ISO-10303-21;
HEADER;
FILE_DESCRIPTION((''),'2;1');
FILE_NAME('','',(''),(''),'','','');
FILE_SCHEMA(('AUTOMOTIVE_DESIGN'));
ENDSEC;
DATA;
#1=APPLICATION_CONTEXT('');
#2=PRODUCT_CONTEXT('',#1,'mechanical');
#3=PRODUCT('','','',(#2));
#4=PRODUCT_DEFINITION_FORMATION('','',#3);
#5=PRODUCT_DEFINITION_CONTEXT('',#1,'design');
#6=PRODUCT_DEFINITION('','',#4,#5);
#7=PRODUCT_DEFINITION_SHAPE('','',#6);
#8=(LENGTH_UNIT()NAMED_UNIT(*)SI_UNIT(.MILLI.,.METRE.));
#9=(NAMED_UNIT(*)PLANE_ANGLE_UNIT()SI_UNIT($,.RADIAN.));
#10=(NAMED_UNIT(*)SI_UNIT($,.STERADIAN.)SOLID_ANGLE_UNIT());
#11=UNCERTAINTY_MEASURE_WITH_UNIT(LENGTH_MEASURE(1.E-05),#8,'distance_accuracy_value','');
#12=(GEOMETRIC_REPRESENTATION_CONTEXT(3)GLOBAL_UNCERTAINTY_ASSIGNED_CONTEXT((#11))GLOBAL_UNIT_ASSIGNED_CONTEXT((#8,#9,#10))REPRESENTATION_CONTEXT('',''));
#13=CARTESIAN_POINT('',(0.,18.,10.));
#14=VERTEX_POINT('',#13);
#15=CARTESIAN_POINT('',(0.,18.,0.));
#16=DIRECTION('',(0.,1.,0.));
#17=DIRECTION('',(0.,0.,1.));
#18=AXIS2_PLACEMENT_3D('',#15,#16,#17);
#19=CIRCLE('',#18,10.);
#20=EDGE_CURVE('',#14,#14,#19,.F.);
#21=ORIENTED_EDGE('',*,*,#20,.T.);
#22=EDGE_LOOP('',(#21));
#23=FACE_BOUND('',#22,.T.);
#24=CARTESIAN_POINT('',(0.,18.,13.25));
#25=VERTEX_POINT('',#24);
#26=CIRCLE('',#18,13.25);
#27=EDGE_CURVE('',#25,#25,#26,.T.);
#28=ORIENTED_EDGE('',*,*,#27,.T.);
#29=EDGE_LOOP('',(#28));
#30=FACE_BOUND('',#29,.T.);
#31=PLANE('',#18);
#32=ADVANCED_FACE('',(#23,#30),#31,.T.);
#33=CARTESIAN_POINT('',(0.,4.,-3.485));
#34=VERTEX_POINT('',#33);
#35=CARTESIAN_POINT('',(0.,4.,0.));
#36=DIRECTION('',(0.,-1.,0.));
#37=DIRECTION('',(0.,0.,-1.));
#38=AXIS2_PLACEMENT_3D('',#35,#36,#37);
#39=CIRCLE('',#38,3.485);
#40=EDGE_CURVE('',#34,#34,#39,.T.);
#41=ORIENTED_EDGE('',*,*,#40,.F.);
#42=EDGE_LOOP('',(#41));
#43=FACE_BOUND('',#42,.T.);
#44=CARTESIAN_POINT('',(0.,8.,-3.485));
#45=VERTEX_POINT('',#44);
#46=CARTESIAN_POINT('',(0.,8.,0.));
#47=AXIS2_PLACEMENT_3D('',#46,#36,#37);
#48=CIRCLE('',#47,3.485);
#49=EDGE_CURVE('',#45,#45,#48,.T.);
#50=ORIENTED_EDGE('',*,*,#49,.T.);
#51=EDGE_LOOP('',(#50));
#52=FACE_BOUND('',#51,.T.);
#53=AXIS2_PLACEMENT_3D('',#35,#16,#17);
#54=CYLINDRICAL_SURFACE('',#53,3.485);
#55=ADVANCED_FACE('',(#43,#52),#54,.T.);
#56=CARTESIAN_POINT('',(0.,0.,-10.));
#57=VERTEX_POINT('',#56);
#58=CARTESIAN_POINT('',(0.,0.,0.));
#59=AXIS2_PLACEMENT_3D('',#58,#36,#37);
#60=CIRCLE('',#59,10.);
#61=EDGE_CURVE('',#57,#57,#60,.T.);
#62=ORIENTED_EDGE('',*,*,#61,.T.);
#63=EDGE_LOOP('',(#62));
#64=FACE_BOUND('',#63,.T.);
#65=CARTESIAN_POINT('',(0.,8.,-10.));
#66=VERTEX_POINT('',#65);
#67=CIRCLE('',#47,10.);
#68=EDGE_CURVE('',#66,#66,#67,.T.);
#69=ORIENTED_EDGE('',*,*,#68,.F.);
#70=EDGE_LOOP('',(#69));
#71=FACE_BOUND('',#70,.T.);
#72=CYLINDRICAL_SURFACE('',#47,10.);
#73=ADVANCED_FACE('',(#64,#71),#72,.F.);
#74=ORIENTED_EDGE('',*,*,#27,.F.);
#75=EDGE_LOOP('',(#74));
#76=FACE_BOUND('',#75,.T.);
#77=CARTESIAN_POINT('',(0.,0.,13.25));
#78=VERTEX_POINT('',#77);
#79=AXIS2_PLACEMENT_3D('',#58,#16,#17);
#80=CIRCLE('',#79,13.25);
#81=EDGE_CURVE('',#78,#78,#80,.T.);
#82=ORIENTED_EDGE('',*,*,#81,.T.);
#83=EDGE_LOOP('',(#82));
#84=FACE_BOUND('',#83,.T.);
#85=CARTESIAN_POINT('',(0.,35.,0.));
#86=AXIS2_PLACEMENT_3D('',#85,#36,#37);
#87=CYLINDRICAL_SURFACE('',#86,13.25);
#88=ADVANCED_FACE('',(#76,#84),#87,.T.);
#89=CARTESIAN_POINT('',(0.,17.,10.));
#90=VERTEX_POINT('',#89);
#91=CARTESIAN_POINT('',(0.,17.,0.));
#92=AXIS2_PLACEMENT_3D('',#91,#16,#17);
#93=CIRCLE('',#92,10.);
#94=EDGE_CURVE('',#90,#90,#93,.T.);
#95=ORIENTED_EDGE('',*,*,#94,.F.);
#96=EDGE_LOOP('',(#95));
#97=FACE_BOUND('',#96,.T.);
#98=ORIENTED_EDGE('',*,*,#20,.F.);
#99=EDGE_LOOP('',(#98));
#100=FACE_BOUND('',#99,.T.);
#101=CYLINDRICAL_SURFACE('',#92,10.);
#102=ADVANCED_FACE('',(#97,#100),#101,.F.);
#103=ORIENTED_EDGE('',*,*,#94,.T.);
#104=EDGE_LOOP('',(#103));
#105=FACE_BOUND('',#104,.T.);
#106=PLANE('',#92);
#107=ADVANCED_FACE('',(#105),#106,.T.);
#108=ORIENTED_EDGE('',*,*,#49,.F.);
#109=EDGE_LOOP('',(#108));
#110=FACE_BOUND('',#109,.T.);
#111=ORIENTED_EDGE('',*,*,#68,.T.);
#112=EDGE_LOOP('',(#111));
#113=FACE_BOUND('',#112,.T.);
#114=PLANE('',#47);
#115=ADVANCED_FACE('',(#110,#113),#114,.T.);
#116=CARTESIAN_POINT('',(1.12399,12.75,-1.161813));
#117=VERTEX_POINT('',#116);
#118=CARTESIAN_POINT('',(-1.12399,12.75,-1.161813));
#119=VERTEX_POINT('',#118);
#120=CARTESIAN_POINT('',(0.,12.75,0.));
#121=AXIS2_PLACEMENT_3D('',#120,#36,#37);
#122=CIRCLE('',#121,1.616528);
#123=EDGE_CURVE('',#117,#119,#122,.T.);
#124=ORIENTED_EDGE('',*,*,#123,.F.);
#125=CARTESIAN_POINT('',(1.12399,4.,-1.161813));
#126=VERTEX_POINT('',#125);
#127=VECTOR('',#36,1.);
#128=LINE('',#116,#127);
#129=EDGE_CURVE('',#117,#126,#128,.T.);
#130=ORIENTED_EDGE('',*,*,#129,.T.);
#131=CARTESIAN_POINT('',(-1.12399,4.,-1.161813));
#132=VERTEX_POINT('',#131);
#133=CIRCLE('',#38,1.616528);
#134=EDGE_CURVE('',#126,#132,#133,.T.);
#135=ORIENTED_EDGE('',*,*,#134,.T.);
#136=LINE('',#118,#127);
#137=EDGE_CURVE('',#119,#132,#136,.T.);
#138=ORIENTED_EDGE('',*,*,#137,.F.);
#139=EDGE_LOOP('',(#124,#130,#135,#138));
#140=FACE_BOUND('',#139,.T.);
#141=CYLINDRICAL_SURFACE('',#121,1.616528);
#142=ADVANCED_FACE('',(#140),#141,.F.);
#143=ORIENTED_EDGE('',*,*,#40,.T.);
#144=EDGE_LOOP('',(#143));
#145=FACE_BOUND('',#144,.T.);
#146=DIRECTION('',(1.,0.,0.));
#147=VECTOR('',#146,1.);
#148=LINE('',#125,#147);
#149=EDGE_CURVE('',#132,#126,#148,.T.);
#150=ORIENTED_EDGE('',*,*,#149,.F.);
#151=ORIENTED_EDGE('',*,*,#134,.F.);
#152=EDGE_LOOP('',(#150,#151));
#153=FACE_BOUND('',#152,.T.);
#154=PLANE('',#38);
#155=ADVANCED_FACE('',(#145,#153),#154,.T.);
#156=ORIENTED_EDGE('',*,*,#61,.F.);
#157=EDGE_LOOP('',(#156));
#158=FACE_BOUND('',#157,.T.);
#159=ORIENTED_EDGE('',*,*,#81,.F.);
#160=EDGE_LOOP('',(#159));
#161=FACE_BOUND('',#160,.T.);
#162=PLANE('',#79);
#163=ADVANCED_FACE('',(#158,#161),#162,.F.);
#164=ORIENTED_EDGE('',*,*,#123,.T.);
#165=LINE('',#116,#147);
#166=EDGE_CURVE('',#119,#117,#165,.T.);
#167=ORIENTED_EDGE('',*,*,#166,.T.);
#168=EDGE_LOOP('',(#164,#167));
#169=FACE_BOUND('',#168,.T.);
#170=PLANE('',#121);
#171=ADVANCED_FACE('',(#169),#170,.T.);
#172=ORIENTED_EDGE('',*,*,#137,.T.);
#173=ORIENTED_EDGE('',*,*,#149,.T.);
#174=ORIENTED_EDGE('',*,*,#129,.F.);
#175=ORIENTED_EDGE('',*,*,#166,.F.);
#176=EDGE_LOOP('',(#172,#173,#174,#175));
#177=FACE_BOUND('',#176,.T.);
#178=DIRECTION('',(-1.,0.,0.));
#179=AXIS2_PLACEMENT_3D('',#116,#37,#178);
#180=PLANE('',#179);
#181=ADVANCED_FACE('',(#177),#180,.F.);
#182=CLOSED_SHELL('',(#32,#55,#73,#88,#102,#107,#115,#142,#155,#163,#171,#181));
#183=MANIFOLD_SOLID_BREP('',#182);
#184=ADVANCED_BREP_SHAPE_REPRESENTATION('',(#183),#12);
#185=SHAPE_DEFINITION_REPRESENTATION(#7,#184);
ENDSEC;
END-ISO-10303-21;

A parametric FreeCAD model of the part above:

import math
import FreeCAD as App
import Part
import Sketcher
Q = App.Units.Quantity

doc = App.newDocument("Part")
params = doc.addObject("Spreadsheet::Sheet", "Params")
for row, (alias, value) in enumerate([
    ("sketch1_diameter", "26.5 mm"),
    ("pad1_length", "35 mm"),
    ("sketch2_diameter", "20 mm"),
    ("pocket1_length", "8 mm"),
    ("sketch3_diameter", "6.97 mm"),
    ("pad2_length", "4 mm"),
    ("pocket2_length", "8.75 mm"),
    ("sketch5_diameter", "20 mm"),
    ("pocket3_length", "18 mm"),
    ("sketch6_diameter", "26.5 mm"),
    ("pocket4_length", "17 mm"),
], start=1):
    params.set(f"A{row}", alias)
    params.set(f"B{row}", "=" + value)
    params.setAlias(f"B{row}", alias)

body = doc.addObject("PartDesign::Body", "Body")

# Sketch on XZ plane
sketch1 = body.newObject("Sketcher::SketchObject", "Sketch")
sketch1.AttachmentSupport = (doc.getObject("XZ_Plane"), [""])
sketch1.MapMode = "FlatFace"
sketch1.addGeometry(Part.Circle(App.Vector(0, 0, 0), App.Vector(0, 0, 1), 13), False)
sketch1.addConstraint([
    Sketcher.Constraint("Coincident", 0, 3, -1, 1),
    Sketcher.Constraint("Diameter", 0, Q("26.5 mm")),
])
sketch1.setExpression("Constraints[1]", "Params.sketch1_diameter")
pad1 = body.newObject("PartDesign::Pad", "Pad")
pad1.Profile = sketch1
pad1.setExpression("Length", "Params.pad1_length")
pad1.Reversed = True

# Sketch on XZ plane
sketch2 = body.newObject("Sketcher::SketchObject", "Sketch001")
sketch2.AttachmentSupport = (doc.getObject("XZ_Plane"), [""])
sketch2.MapMode = "FlatFace"
sketch2.addGeometry(Part.Circle(App.Vector(0, 0, 0), App.Vector(0, 0, 1), 10), False)
sketch2.addConstraint([
    Sketcher.Constraint("Coincident", 0, 3, -1, 1),
    Sketcher.Constraint("Diameter", 0, Q("20 mm")),
])
sketch2.setExpression("Constraints[1]", "Params.sketch2_diameter")
pocket1 = body.newObject("PartDesign::Pocket", "Pocket")
pocket1.Profile = sketch2
pocket1.setExpression("Length", "Params.pocket1_length")

# Sketch on XZ plane
sketch3 = body.newObject("Sketcher::SketchObject", "Sketch002")
sketch3.AttachmentSupport = (doc.getObject("XZ_Plane"), [""])
sketch3.MapMode = "FlatFace"
sketch3.AttachmentOffset = App.Placement(App.Vector(0, 0, -8), App.Rotation())
sketch3.addGeometry(Part.Circle(App.Vector(0, 0, 0), App.Vector(0, 0, 1), 3.5), False)
sketch3.addConstraint([
    Sketcher.Constraint("Coincident", 0, 3, -1, 1),
    Sketcher.Constraint("Diameter", 0, Q("6.97 mm")),
])
sketch3.setExpression("Constraints[1]", "Params.sketch3_diameter")
pad2 = body.newObject("PartDesign::Pad", "Pad001")
pad2.Profile = sketch3
pad2.setExpression("Length", "Params.pad2_length")

# Sketch on XZ plane
sketch4 = body.newObject("Sketcher::SketchObject", "Sketch003")
sketch4.AttachmentSupport = (doc.getObject("XZ_Plane"), [""])
sketch4.MapMode = "FlatFace"
sketch4.AttachmentOffset = App.Placement(App.Vector(0, 0, -4), App.Rotation())
sketch4.addGeometry([
    Part.LineSegment(App.Vector(-1.1, -1.2, 0), App.Vector(1.1, -1.2, 0)),
    Part.ArcOfCircle(Part.Circle(App.Vector(0, 0, 0), App.Vector(0, 0, 1), 1.6), math.radians(-46), math.radians(226)),
], False)
sketch4.addConstraint([
    Sketcher.Constraint("Coincident", 0, 1, 1, 2),
    Sketcher.Constraint("Coincident", 1, 1, 0, 2),
    Sketcher.Constraint("Horizontal", 0),
    Sketcher.Constraint("Coincident", 1, 3, -1, 1),
    Sketcher.Constraint("Radius", 1, Q("1.616528 mm")),
    Sketcher.Constraint("DistanceX", 0, 1, 0, 2, Q("2.247981 mm")),
])
pocket2 = body.newObject("PartDesign::Pocket", "Pocket001")
pocket2.Profile = sketch4
pocket2.setExpression("Length", "Params.pocket2_length")

# Sketch on XZ plane
sketch5 = body.newObject("Sketcher::SketchObject", "Sketch004")
sketch5.AttachmentSupport = (doc.getObject("XZ_Plane"), [""])
sketch5.MapMode = "FlatFace"
sketch5.AttachmentOffset = App.Placement(App.Vector(0, 0, -35), App.Rotation())
sketch5.addGeometry(Part.Circle(App.Vector(0, 0, 0), App.Vector(0, 0, 1), 10), False)
sketch5.addConstraint([
    Sketcher.Constraint("Coincident", 0, 3, -1, 1),
    Sketcher.Constraint("Diameter", 0, Q("20 mm")),
])
sketch5.setExpression("Constraints[1]", "Params.sketch5_diameter")
pocket3 = body.newObject("PartDesign::Pocket", "Pocket002")
pocket3.Profile = sketch5
pocket3.setExpression("Length", "Params.pocket3_length")
pocket3.Reversed = True

# Sketch on XZ plane
sketch6 = body.newObject("Sketcher::SketchObject", "Sketch005")
sketch6.AttachmentSupport = (doc.getObject("XZ_Plane"), [""])
sketch6.MapMode = "FlatFace"
sketch6.AttachmentOffset = App.Placement(App.Vector(0, 0, -35), App.Rotation())
sketch6.addGeometry(Part.Circle(App.Vector(0, 0, 0), App.Vector(0, 0, 1), 13), False)
sketch6.addConstraint([
    Sketcher.Constraint("Coincident", 0, 3, -1, 1),
    Sketcher.Constraint("Diameter", 0, Q("26.5 mm")),
])
sketch6.setExpression("Constraints[1]", "Params.sketch6_diameter")
pocket4 = body.newObject("PartDesign::Pocket", "Pocket003")
pocket4.Profile = sketch6
pocket4.setExpression("Length", "Params.pocket4_length")
pocket4.Reversed = True

doc.recompute()
